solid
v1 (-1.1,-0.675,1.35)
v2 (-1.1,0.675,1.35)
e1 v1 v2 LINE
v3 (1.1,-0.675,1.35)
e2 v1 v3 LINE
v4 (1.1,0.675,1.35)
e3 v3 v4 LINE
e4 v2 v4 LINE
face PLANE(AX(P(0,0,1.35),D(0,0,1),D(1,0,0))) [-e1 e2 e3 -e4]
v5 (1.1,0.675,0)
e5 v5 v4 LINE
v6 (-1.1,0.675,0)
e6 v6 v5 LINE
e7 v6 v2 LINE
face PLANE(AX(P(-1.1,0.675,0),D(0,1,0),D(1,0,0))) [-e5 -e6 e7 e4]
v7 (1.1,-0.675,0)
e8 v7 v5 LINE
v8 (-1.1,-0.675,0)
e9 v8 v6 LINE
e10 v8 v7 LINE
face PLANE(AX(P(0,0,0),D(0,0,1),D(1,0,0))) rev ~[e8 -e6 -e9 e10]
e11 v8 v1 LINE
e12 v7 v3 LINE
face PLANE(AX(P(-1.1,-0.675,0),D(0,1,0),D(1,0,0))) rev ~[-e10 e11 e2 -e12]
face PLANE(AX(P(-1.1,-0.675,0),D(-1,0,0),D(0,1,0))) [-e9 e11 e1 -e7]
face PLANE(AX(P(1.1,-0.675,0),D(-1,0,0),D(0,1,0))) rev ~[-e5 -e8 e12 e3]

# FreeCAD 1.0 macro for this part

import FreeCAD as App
import Part
import Sketcher


def add_polygon(sketch, points):
    """Adds a closed chain of lines whose ends are joined by coincident constraints."""
    first, n = sketch.GeometryCount, len(points)
    for a, b in zip(points, points[1:] + points[:1]):
        sketch.addGeometry(Part.LineSegment(App.Vector(*a, 0), App.Vector(*b, 0)), False)
    for i in range(n):
        sketch.addConstraint(Sketcher.Constraint("Coincident", first + i, 2, first + (i + 1) % n, 1))

doc = App.newDocument("Part")
body = doc.addObject("PartDesign::Body", "Body")

# Sketch on XY plane
sketch1 = body.newObject("Sketcher::SketchObject", "Sketch")
sketch1.AttachmentSupport = (doc.getObject("XY_Plane"), [""])
sketch1.MapMode = "FlatFace"
add_polygon(sketch1, [(-1.1, 0.7), (-1.1, -0.7), (1.1, -0.7), (1.1, 0.7)])  # lines 0-3
sketch1.addConstraint(Sketcher.Constraint("Vertical", 0))
sketch1.addConstraint(Sketcher.Constraint("Horizontal", 1))
sketch1.addConstraint(Sketcher.Constraint("Vertical", 2))
sketch1.addConstraint(Sketcher.Constraint("Horizontal", 3))
sketch1.addConstraint(Sketcher.Constraint("Symmetric", 0, 2, 2, 2, -1, 1))
sketch1.addConstraint(Sketcher.Constraint("DistanceX", 1, 1, 1, 2, 2.2))
sketch1.addConstraint(Sketcher.Constraint("DistanceY", 0, 2, 0, 1, 1.35))
pad1 = body.newObject("PartDesign::Pad", "Pad")
pad1.Profile = sketch1
pad1.Length = 1.35

doc.recompute()
